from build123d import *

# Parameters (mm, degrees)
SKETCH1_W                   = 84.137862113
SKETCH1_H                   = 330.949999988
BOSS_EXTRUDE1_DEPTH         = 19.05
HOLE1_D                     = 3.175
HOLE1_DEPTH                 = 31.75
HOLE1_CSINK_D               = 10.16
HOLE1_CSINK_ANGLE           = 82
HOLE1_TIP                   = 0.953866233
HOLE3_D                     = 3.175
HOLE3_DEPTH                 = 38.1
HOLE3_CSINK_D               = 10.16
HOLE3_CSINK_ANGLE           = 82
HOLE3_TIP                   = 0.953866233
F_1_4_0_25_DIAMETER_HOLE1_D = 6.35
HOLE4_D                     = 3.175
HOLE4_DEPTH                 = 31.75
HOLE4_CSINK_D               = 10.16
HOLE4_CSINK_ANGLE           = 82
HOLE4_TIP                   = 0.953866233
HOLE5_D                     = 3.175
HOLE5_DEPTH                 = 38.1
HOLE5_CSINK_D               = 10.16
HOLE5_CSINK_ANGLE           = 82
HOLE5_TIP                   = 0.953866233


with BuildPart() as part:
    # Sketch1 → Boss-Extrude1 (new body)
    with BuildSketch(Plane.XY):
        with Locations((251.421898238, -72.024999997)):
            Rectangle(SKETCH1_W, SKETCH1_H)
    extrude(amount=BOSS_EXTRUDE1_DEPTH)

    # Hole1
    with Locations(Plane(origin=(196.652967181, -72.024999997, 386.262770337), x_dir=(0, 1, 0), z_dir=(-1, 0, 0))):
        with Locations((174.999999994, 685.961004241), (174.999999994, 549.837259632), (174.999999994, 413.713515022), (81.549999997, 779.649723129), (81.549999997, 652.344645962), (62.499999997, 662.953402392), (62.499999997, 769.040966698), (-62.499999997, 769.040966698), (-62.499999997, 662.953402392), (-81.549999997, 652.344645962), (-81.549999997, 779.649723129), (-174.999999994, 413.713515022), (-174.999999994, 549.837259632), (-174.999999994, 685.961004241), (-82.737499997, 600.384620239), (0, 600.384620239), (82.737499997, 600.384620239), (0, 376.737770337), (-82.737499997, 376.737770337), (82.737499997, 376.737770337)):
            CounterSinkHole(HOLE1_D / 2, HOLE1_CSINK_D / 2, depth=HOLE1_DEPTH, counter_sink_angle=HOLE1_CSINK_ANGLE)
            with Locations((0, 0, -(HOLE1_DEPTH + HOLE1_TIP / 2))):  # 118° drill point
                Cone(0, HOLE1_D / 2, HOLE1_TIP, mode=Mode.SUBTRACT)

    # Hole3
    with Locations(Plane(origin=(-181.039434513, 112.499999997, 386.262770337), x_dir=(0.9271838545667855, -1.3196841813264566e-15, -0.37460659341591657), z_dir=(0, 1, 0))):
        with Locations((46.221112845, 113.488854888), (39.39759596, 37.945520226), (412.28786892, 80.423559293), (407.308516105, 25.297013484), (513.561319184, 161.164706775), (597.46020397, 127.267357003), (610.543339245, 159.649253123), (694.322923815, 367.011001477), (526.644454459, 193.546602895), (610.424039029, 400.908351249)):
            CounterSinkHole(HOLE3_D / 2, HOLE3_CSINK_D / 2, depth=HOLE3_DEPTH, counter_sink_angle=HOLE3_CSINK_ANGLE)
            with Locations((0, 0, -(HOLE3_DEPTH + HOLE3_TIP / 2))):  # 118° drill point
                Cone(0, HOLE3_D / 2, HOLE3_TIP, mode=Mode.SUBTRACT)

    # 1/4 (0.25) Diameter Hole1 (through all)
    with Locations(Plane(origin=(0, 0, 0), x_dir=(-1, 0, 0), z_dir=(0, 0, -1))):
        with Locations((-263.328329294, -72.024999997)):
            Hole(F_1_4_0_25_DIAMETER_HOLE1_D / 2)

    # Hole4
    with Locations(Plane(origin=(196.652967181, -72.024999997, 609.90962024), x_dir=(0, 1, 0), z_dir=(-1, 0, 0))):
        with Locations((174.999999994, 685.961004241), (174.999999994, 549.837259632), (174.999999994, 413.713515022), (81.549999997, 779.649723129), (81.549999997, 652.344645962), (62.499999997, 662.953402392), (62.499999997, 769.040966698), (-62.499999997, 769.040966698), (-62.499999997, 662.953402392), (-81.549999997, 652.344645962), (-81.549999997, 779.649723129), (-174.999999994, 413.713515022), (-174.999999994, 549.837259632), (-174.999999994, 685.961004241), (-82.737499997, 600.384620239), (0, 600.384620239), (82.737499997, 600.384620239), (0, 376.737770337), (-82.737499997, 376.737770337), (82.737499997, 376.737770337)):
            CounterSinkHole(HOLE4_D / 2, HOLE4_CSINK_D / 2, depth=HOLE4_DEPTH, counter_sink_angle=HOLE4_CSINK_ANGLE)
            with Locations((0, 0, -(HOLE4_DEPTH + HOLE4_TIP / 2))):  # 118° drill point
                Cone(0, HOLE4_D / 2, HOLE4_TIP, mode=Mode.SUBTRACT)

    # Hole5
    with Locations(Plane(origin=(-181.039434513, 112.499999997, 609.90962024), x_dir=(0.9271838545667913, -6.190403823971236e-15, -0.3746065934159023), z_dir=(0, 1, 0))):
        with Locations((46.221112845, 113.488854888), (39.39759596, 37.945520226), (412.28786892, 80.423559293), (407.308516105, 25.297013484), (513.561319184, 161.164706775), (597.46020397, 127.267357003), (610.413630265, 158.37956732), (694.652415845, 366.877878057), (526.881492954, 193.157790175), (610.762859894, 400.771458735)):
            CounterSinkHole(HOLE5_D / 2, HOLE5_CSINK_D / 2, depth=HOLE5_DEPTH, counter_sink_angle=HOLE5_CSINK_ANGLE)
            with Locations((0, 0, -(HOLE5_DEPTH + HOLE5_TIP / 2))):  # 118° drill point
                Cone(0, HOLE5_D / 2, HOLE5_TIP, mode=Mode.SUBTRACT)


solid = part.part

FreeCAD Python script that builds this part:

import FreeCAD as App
import Part
import Sketcher
Q = App.Units.Quantity


def add_polygon(sketch, points):
    """Adds a closed chain of lines whose ends are joined by coincident constraints."""
    first, n = sketch.GeometryCount, len(points)
    for a, b in zip(points, points[1:] + points[:1]):
        sketch.addGeometry(Part.LineSegment(App.Vector(*a, 0), App.Vector(*b, 0)), False)
    for i in range(n):
        sketch.addConstraint(Sketcher.Constraint("Coincident", first + i, 2, first + (i + 1) % n, 1))

doc = App.newDocument("Part")
body = doc.addObject("PartDesign::Body", "Body")

# Sketch on XY plane
sketch1 = body.newObject("Sketcher::SketchObject", "Sketch")
sketch1.AttachmentSupport = (doc.getObject("XY_Plane"), [""])
sketch1.MapMode = "FlatFace"
add_polygon(sketch1, [(209, 93), (209, -237), (293, -237), (293, 93)])  # lines 0-3
sketch1.addConstraint(Sketcher.Constraint("Vertical", 0))
sketch1.addConstraint(Sketcher.Constraint("Horizontal", 1))
sketch1.addConstraint(Sketcher.Constraint("Vertical", 2))
sketch1.addConstraint(Sketcher.Constraint("Horizontal", 3))
sketch1.addConstraint(Sketcher.Constraint("DistanceY", 0, 2, 0, 1, Q("330.95 mm")))
sketch1.addConstraint(Sketcher.Constraint("DistanceY", 0, 2, -1, 1, Q("237.5 mm")))
sketch1.addConstraint(Sketcher.Constraint("DistanceX", 1, 1, 1, 2, Q("84.137862 mm")))
sketch1.addConstraint(Sketcher.Constraint("DistanceX", -1, 1, 1, 2, Q("293.490829 mm")))
pad1 = body.newObject("PartDesign::Pad", "Pad")
pad1.Profile = sketch1
pad1.Length = Q("0.75 in")

# Sketch on YZ plane
sketch2 = body.newObject("Sketcher::SketchObject", "Sketch001")
sketch2.AttachmentSupport = (doc.getObject("YZ_Plane"), [""])
sketch2.MapMode = "FlatFace"
sketch2.AttachmentOffset = App.Placement(App.Vector(0, 0, 196.652967), App.Rotation())
sketch2.addGeometry(Part.Circle(App.Vector(103, -299.7, 0), App.Vector(0, 0, 1), 1.6), False)
sketch2.addGeometry(Part.Circle(App.Vector(103, -163.6, 0), App.Vector(0, 0, 1), 1.6), False)
sketch2.addGeometry(Part.Circle(App.Vector(103, -27.5, 0), App.Vector(0, 0, 1), 1.6), False)
sketch2.addGeometry(Part.Circle(App.Vector(9.5, -393.4, 0), App.Vector(0, 0, 1), 1.6), False)
sketch2.addGeometry(Part.Circle(App.Vector(9.5, -266.1, 0), App.Vector(0, 0, 1), 1.6), False)
sketch2.addGeometry(Part.Circle(App.Vector(-9.5, -276.7, 0), App.Vector(0, 0, 1), 1.6), False)
sketch2.addGeometry(Part.Circle(App.Vector(-9.5, -382.8, 0), App.Vector(0, 0, 1), 1.6), False)
sketch2.addGeometry(Part.Circle(App.Vector(-134.5, -382.8, 0), App.Vector(0, 0, 1), 1.6), False)
sketch2.addGeometry(Part.Circle(App.Vector(-134.5, -276.7, 0), App.Vector(0, 0, 1), 1.6), False)
sketch2.addGeometry(Part.Circle(App.Vector(-153.6, -266.1, 0), App.Vector(0, 0, 1), 1.6), False)
sketch2.addGeometry(Part.Circle(App.Vector(-153.6, -393.4, 0), App.Vector(0, 0, 1), 1.6), False)
sketch2.addGeometry(Part.Circle(App.Vector(-247, -27.5, 0), App.Vector(0, 0, 1), 1.6), False)
sketch2.addGeometry(Part.Circle(App.Vector(-247, -163.6, 0), App.Vector(0, 0, 1), 1.6), False)
sketch2.addGeometry(Part.Circle(App.Vector(-247, -299.7, 0), App.Vector(0, 0, 1), 1.6), False)
sketch2.addGeometry(Part.Circle(App.Vector(-154.8, -214.1, 0), App.Vector(0, 0, 1), 1.6), False)
sketch2.addGeometry(Part.Circle(App.Vector(-72, -214.1, 0), App.Vector(0, 0, 1), 1.6), False)
sketch2.addGeometry(Part.Circle(App.Vector(10.7, -214.1, 0), App.Vector(0, 0, 1), 1.6), False)
sketch2.addGeometry(Part.Circle(App.Vector(-72, 9.5, 0), App.Vector(0, 0, 1), 1.6), False)
sketch2.addGeometry(Part.Circle(App.Vector(-154.8, 9.5, 0), App.Vector(0, 0, 1), 1.6), False)
sketch2.addGeometry(Part.Circle(App.Vector(10.7, 9.5, 0), App.Vector(0, 0, 1), 1.6), False)
sketch2.addConstraint(Sketcher.Constraint("Equal", 0, 1))
sketch2.addConstraint(Sketcher.Constraint("Equal", 1, 2))
sketch2.addConstraint(Sketcher.Constraint("Equal", 2, 3))
sketch2.addConstraint(Sketcher.Constraint("Equal", 3, 4))
sketch2.addConstraint(Sketcher.Constraint("Equal", 4, 5))
sketch2.addConstraint(Sketcher.Constraint("Equal", 5, 6))
sketch2.addConstraint(Sketcher.Constraint("Equal", 6, 7))
sketch2.addConstraint(Sketcher.Constraint("Equal", 7, 8))
sketch2.addConstraint(Sketcher.Constraint("Equal", 8, 9))
sketch2.addConstraint(Sketcher.Constraint("Equal", 9, 10))
sketch2.addConstraint(Sketcher.Constraint("Equal", 10, 11))
sketch2.addConstraint(Sketcher.Constraint("Equal", 11, 12))
sketch2.addConstraint(Sketcher.Constraint("Equal", 12, 13))
sketch2.addConstraint(Sketcher.Constraint("Equal", 13, 14))
sketch2.addConstraint(Sketcher.Constraint("Equal", 14, 15))
sketch2.addConstraint(Sketcher.Constraint("Equal", 15, 16))
sketch2.addConstraint(Sketcher.Constraint("Equal", 16, 17))
sketch2.addConstraint(Sketcher.Constraint("Equal", 17, 18))
sketch2.addConstraint(Sketcher.Constraint("Equal", 18, 19))
sketch2.addConstraint(Sketcher.Constraint("Horizontal", 6, 3, 7, 3))
sketch2.addConstraint(Sketcher.Constraint("Horizontal", 5, 3, 8, 3))
sketch2.addConstraint(Sketcher.Constraint("Horizontal", 4, 3, 9, 3))
sketch2.addConstraint(Sketcher.Constraint("Horizontal", 3, 3, 10, 3))
sketch2.addConstraint(Sketcher.Constraint("Horizontal", 2, 3, 11, 3))
sketch2.addConstraint(Sketcher.Constraint("Horizontal", 1, 3, 12, 3))
sketch2.addConstraint(Sketcher.Constraint("Horizontal", 0, 3, 13, 3))
sketch2.addConstraint(Sketcher.Constraint("Horizontal", 14, 3, 15, 3))
sketch2.addConstraint(Sketcher.Constraint("Horizontal", 15, 3, 16, 3))
sketch2.addConstraint(Sketcher.Constraint("Horizontal", 17, 3, 18, 3))
sketch2.addConstraint(Sketcher.Constraint("Horizontal", 18, 3, 19, 3))
sketch2.addConstraint(Sketcher.Constraint("Vertical", 0, 3, 1, 3))
sketch2.addConstraint(Sketcher.Constraint("Vertical", 1, 3, 2, 3))
sketch2.addConstraint(Sketcher.Constraint("Vertical", 3, 3, 4, 3))
sketch2.addConstraint(Sketcher.Constraint("Vertical", 5, 3, 6, 3))
sketch2.addConstraint(Sketcher.Constraint("Vertical", 7, 3, 8, 3))
sketch2.addConstraint(Sketcher.Constraint("Vertical", 9, 3, 10, 3))
sketch2.addConstraint(Sketcher.Constraint("Vertical", 11, 3, 12, 3))
sketch2.addConstraint(Sketcher.Constraint("Vertical", 12, 3, 13, 3))
sketch2.addConstraint(Sketcher.Constraint("Vertical", 15, 3, 17, 3))
sketch2.addConstraint(Sketcher.Constraint("Vertical", 14, 3, 18, 3))
sketch2.addConstraint(Sketcher.Constraint("Vertical", 16, 3, 19, 3))
sketch2.addConstraint(Sketcher.Constraint("Diameter", 0, Q("0.125 in")))
sketch2.addConstraint(Sketcher.Constraint("DistanceX", 5, 3, 4, 3, Q("0.75 in")))
sketch2.addConstraint(Sketcher.Constraint("DistanceX", 9, 3, 8, 3, Q("0.75 in")))
sketch2.addConstraint(Sketcher.Constraint("DistanceX", -1, 1, 3, 3, Q("0.375 in")))
sketch2.addConstraint(Sketcher.Constraint("DistanceY", -1, 1, 17, 3, Q("0.375 in")))
sketch2.addConstraint(Sketcher.Constraint("DistanceX", -1, 1, 0, 3, Q("102.975 mm")))
sketch2.addConstraint(Sketcher.Constraint("DistanceX", 7, 3, -1, 1, Q("134.525 mm")))
sketch2.addConstraint(Sketcher.Constraint("DistanceX", 11, 3, -1, 1, Q("247.025 mm")))
sketch2.addConstraint(Sketcher.Constraint("DistanceX", 14, 3, -1, 1, Q("154.7625 mm")))
sketch2.addConstraint(Sketcher.Constraint("DistanceX", 15, 3, -1, 1, Q("72.025 mm")))
sketch2.addConstraint(Sketcher.Constraint("DistanceX", -1, 1, 16, 3, Q("10.7125 mm")))
sketch2.addConstraint(Sketcher.Constraint("DistanceY", 0, 3, 5, 3, Q("23.007602 mm")))
sketch2.addConstraint(Sketcher.Constraint("DistanceY", 1, 3, -1, 1, Q("163.574489 mm")))
sketch2.addConstraint(Sketcher.Constraint("DistanceY", 14, 3, -1, 1, Q("214.12185 mm")))
sketch2.addConstraint(Sketcher.Constraint("DistanceY", 0, 3, 2, 3, Q("272.247489 mm")))
sketch2.addConstraint(Sketcher.Constraint("DistanceY", 3, 3, 0, 3, Q("93.688719 mm")))
sketch2.addConstraint(Sketcher.Constraint("DistanceY", 0, 3, 4, 3, Q("33.616358 mm")))
sketch2.addConstraint(Sketcher.Constraint("DistanceY", 6, 3, 4, 3, Q("116.696321 mm")))
sketch2.addConstraint(Sketcher.Constraint("DistanceY", 0, 3, -1, 1, Q("299.698234 mm")))
doc.recompute()
hole = body.newObject("PartDesign::Hole", "Hole")
hole.Profile = sketch2
hole.ThreadType = "None"
hole.Diameter = Q("0.125 in")
hole.DepthType = "Dimension"
hole.Depth = Q("1.25 in")
hole.DrillPoint = "Angled"
hole.DrillPointAngle = 118
hole.HoleCutType = "Countersink"
hole.HoleCutDiameter = Q("0.4 in")
hole.HoleCutCountersinkAngle = 82
hole.Reversed = True

# Sketch on XZ plane
sketch3 = body.newObject("Sketcher::SketchObject", "Sketch002")
sketch3.AttachmentSupport = (doc.getObject("XZ_Plane"), [""])
sketch3.MapMode = "FlatFace"
sketch3.AttachmentOffset = App.Placement(App.Vector(0, 0, -112.5), App.Rotation())
sketch3.addGeometry(Part.Circle(App.Vector(-180.7, 263.7, 0), App.Vector(0, 0, 1), 1.6), False)
sketch3.addGeometry(Part.Circle(App.Vector(-158.7, 336.3, 0), App.Vector(0, 0, 1), 1.6), False)
sketch3.addGeometry(Part.Circle(App.Vector(171.1, 157.2, 0), App.Vector(0, 0, 1), 1.6), False)
sketch3.addGeometry(Part.Circle(App.Vector(187.1, 210.2, 0), App.Vector(0, 0, 1), 1.6), False)
sketch3.addGeometry(Part.Circle(App.Vector(234.8, 44.5, 0), App.Vector(0, 0, 1), 1.6), False)
sketch3.addGeometry(Part.Circle(App.Vector(325.2, 44.5, 0), App.Vector(0, 0, 1), 1.6), False)
sketch3.addGeometry(Part.Circle(App.Vector(325.2, 9.5, 0), App.Vector(0, 0, 1), 1.6), False)
sketch3.addGeometry(Part.Circle(App.Vector(325.2, -214.1, 0), App.Vector(0, 0, 1), 1.6), False)
sketch3.addGeometry(Part.Circle(App.Vector(234.8, 9.5, 0), App.Vector(0, 0, 1), 1.6), False)
sketch3.addGeometry(Part.Circle(App.Vector(234.8, -214.1, 0), App.Vector(0, 0, 1), 1.6), False)
sketch3.addConstraint(Sketcher.Constraint("Equal", 0, 1))
sketch3.addConstraint(Sketcher.Constraint("Equal", 1, 2))
sketch3.addConstraint(Sketcher.Constraint("Equal", 2, 3))
sketch3.addConstraint(Sketcher.Constraint("Equal", 3, 4))
sketch3.addConstraint(Sketcher.Constraint("Equal", 4, 5))
sketch3.addConstraint(Sketcher.Constraint("Equal", 5, 6))
sketch3.addConstraint(Sketcher.Constraint("Equal", 6, 7))
sketch3.addConstraint(Sketcher.Constraint("Equal", 7, 8))
sketch3.addConstraint(Sketcher.Constraint("Equal", 8, 9))
sketch3.addConstraint(Sketcher.Constraint("Horizontal", 4, 3, 5, 3))
sketch3.addConstraint(Sketcher.Constraint("Horizontal", 6, 3, 8, 3))
sketch3.addConstraint(Sketcher.Constraint("Horizontal", 7, 3, 9, 3))
sketch3.addConstraint(Sketcher.Constraint("Vertical", 5, 3, 6, 3))
sketch3.addConstraint(Sketcher.Constraint("Vertical", 6, 3, 7, 3))
sketch3.addConstraint(Sketcher.Constraint("Vertical", 4, 3, 8, 3))
sketch3.addConstraint(Sketcher.Constraint("Vertical", 8, 3, 9, 3))
sketch3.addConstraint(Sketcher.Constraint("Diameter", 0, Q("0.125 in")))
sketch3.addConstraint(Sketcher.Constraint("DistanceY", -1, 1, 4, 3, Q("1.75 in")))
sketch3.addConstraint(Sketcher.Constraint("DistanceY", -1, 1, 6, 3, Q("0.375 in")))
sketch3.addConstraint(Sketcher.Constraint("DistanceX", 0, 3, -1, 1, Q("180.697638 mm")))
sketch3.addConstraint(Sketcher.Constraint("DistanceX", 1, 3, -1, 1, Q("158.725262 mm")))
sketch3.addConstraint(Sketcher.Constraint("DistanceY", -1, 1, 2, 3, Q("157.249591 mm")))
sketch3.addConstraint(Sketcher.Constraint("DistanceX", -1, 1, 5, 3, Q("325.240829 mm")))
sketch3.addConstraint(Sketcher.Constraint("DistanceY", 7, 3, -1, 1, Q("214.12185 mm")))
sketch3.addConstraint(Sketcher.Constraint("DistanceX", 2, 3, 3, 3, Q("16.033992 mm")))
sketch3.addConstraint(Sketcher.Constraint("DistanceY", 2, 3, 3, 3, Q("52.977742 mm")))
sketch3.addConstraint(Sketcher.Constraint("DistanceX", 1, 3, 3, 3, Q("345.859279 mm")))
sketch3.addConstraint(Sketcher.Constraint("DistanceY", 3, 3, 0, 3, Q("53.49567 mm")))
sketch3.addConstraint(Sketcher.Constraint("DistanceX", 2, 3, 4, 3, Q("63.652942 mm")))
sketch3.addConstraint(Sketcher.Constraint("DistanceY", -1, 1, 1, 3, Q("336.321697 mm")))
doc.recompute()
hole2 = body.newObject("PartDesign::Hole", "Hole001")
hole2.Profile = sketch3
hole2.ThreadType = "None"
hole2.Diameter = Q("0.125 in")
hole2.DepthType = "Dimension"
hole2.Depth = Q("1.5 in")
hole2.DrillPoint = "Angled"
hole2.DrillPointAngle = 118
hole2.HoleCutType = "Countersink"
hole2.HoleCutDiameter = Q("0.4 in")
hole2.HoleCutCountersinkAngle = 82
hole2.Reversed = True

# Sketch on XY plane
sketch4 = body.newObject("Sketcher::SketchObject", "Sketch003")
sketch4.AttachmentSupport = (doc.getObject("XY_Plane"), [""])
sketch4.MapMode = "FlatFace"
sketch4.addGeometry(Part.Circle(App.Vector(263.3, -72, 0), App.Vector(0, 0, 1), 3.2), False)
sketch4.addConstraint(Sketcher.Constraint("Diameter", 0, Q("0.25 in")))
sketch4.addConstraint(Sketcher.Constraint("DistanceY", 0, 3, -1, 1, Q("72.025 mm")))
sketch4.addConstraint(Sketcher.Constraint("DistanceX", -1, 1, 0, 3, Q("263.328329 mm")))
doc.recompute()
hole3 = body.newObject("PartDesign::Hole", "Hole002")
hole3.Profile = sketch4
hole3.ThreadType = "None"
hole3.Diameter = Q("0.25 in")
hole3.DepthType = "ThroughAll"
hole3.Reversed = True

# Sketch on YZ plane
sketch5 = body.newObject("Sketcher::SketchObject", "Sketch004")
sketch5.AttachmentSupport = (doc.getObject("YZ_Plane"), [""])
sketch5.MapMode = "FlatFace"
sketch5.AttachmentOffset = App.Placement(App.Vector(0, 0, 196.652967), App.Rotation())
sketch5.addGeometry(Part.Circle(App.Vector(103, -76.1, 0), App.Vector(0, 0, 1), 1.6), False)
sketch5.addGeometry(Part.Circle(App.Vector(103, 60.1, 0), App.Vector(0, 0, 1), 1.6), False)
sketch5.addGeometry(Part.Circle(App.Vector(103, 196.2, 0), App.Vector(0, 0, 1), 1.6), False)
sketch5.addGeometry(Part.Circle(App.Vector(9.5, -169.7, 0), App.Vector(0, 0, 1), 1.6), False)
sketch5.addGeometry(Part.Circle(App.Vector(9.5, -42.4, 0), App.Vector(0, 0, 1), 1.6), False)
sketch5.addGeometry(Part.Circle(App.Vector(-9.5, -53, 0), App.Vector(0, 0, 1), 1.6), False)
sketch5.addGeometry(Part.Circle(App.Vector(-9.5, -159.1, 0), App.Vector(0, 0, 1), 1.6), False)
sketch5.addGeometry(Part.Circle(App.Vector(-134.5, -159.1, 0), App.Vector(0, 0, 1), 1.6), False)
sketch5.addGeometry(Part.Circle(App.Vector(-134.5, -53, 0), App.Vector(0, 0, 1), 1.6), False)
sketch5.addGeometry(Part.Circle(App.Vector(-153.6, -42.4, 0), App.Vector(0, 0, 1), 1.6), False)
sketch5.addGeometry(Part.Circle(App.Vector(-153.6, -169.7, 0), App.Vector(0, 0, 1), 1.6), False)
sketch5.addGeometry(Part.Circle(App.Vector(-247, 196.2, 0), App.Vector(0, 0, 1), 1.6), False)
sketch5.addGeometry(Part.Circle(App.Vector(-247, 60.1, 0), App.Vector(0, 0, 1), 1.6), False)
sketch5.addGeometry(Part.Circle(App.Vector(-247, -76.1, 0), App.Vector(0, 0, 1), 1.6), False)
sketch5.addGeometry(Part.Circle(App.Vector(-154.8, 9.5, 0), App.Vector(0, 0, 1), 1.6), False)
sketch5.addGeometry(Part.Circle(App.Vector(-72, 9.5, 0), App.Vector(0, 0, 1), 1.6), False)
sketch5.addGeometry(Part.Circle(App.Vector(10.7, 9.5, 0), App.Vector(0, 0, 1), 1.6), False)
sketch5.addGeometry(Part.Circle(App.Vector(-72, 233.2, 0), App.Vector(0, 0, 1), 1.6), False)
sketch5.addGeometry(Part.Circle(App.Vector(-154.8, 233.2, 0), App.Vector(0, 0, 1), 1.6), False)
sketch5.addGeometry(Part.Circle(App.Vector(10.7, 233.2, 0), App.Vector(0, 0, 1), 1.6), False)
sketch5.addConstraint(Sketcher.Constraint("Equal", 0, 1))
sketch5.addConstraint(Sketcher.Constraint("Equal", 1, 2))
sketch5.addConstraint(Sketcher.Constraint("Equal", 2, 3))
sketch5.addConstraint(Sketcher.Constraint("Equal", 3, 4))
sketch5.addConstraint(Sketcher.Constraint("Equal", 4, 5))
sketch5.addConstraint(Sketcher.Constraint("Equal", 5, 6))
sketch5.addConstraint(Sketcher.Constraint("Equal", 6, 7))
sketch5.addConstraint(Sketcher.Constraint("Equal", 7, 8))
sketch5.addConstraint(Sketcher.Constraint("Equal", 8, 9))
sketch5.addConstraint(Sketcher.Constraint("Equal", 9, 10))
sketch5.addConstraint(Sketcher.Constraint("Equal", 10, 11))
sketch5.addConstraint(Sketcher.Constraint("Equal", 11, 12))
sketch5.addConstraint(Sketcher.Constraint("Equal", 12, 13))
sketch5.addConstraint(Sketcher.Constraint("Equal", 13, 14))
sketch5.addConstraint(Sketcher.Constraint("Equal", 14, 15))
sketch5.addConstraint(Sketcher.Constraint("Equal", 15, 16))
sketch5.addConstraint(Sketcher.Constraint("Equal", 16, 17))
sketch5.addConstraint(Sketcher.Constraint("Equal", 17, 18))
sketch5.addConstraint(Sketcher.Constraint("Equal", 18, 19))
sketch5.addConstraint(Sketcher.Constraint("Horizontal", 6, 3, 7, 3))
sketch5.addConstraint(Sketcher.Constraint("Horizontal", 5, 3, 8, 3))
sketch5.addConstraint(Sketcher.Constraint("Horizontal", 4, 3, 9, 3))
sketch5.addConstraint(Sketcher.Constraint("Horizontal", 3, 3, 10, 3))
sketch5.addConstraint(Sketcher.Constraint("Horizontal", 2, 3, 11, 3))
sketch5.addConstraint(Sketcher.Constraint("Horizontal", 1, 3, 12, 3))
sketch5.addConstraint(Sketcher.Constraint("Horizontal", 0, 3, 13, 3))
sketch5.addConstraint(Sketcher.Constraint("Horizontal", 14, 3, 15, 3))
sketch5.addConstraint(Sketcher.Constraint("Horizontal", 15, 3, 16, 3))
sketch5.addConstraint(Sketcher.Constraint("Horizontal", 17, 3, 18, 3))
sketch5.addConstraint(Sketcher.Constraint("Horizontal", 18, 3, 19, 3))
sketch5.addConstraint(Sketcher.Constraint("Vertical", 0, 3, 1, 3))
sketch5.addConstraint(Sketcher.Constraint("Vertical", 1, 3, 2, 3))
sketch5.addConstraint(Sketcher.Constraint("Vertical", 3, 3, 4, 3))
sketch5.addConstraint(Sketcher.Constraint("Vertical", 5, 3, 6, 3))
sketch5.addConstraint(Sketcher.Constraint("Vertical", 7, 3, 8, 3))
sketch5.addConstraint(Sketcher.Constraint("Vertical", 9, 3, 10, 3))
sketch5.addConstraint(Sketcher.Constraint("Vertical", 11, 3, 12, 3))
sketch5.addConstraint(Sketcher.Constraint("Vertical", 12, 3, 13, 3))
sketch5.addConstraint(Sketcher.Constraint("Vertical", 15, 3, 17, 3))
sketch5.addConstraint(Sketcher.Constraint("Vertical", 14, 3, 18, 3))
sketch5.addConstraint(Sketcher.Constraint("Vertical", 16, 3, 19, 3))
sketch5.addConstraint(Sketcher.Constraint("Diameter", 0, Q("0.125 in")))
sketch5.addConstraint(Sketcher.Constraint("DistanceX", 5, 3, 4, 3, Q("0.75 in")))
sketch5.addConstraint(Sketcher.Constraint("DistanceX", 9, 3, 8, 3, Q("0.75 in")))
sketch5.addConstraint(Sketcher.Constraint("DistanceX", -1, 1, 3, 3, Q("0.375 in")))
sketch5.addConstraint(Sketcher.Constraint("DistanceY", -1, 1, 14, 3, Q("0.375 in")))
sketch5.addConstraint(Sketcher.Constraint("DistanceX", -1, 1, 0, 3, Q("102.975 mm")))
sketch5.addConstraint(Sketcher.Constraint("DistanceX", 7, 3, -1, 1, Q("134.525 mm")))
sketch5.addConstraint(Sketcher.Constraint("DistanceX", 11, 3, -1, 1, Q("247.025 mm")))
sketch5.addConstraint(Sketcher.Constraint("DistanceX", 14, 3, -1, 1, Q("154.7625 mm")))
sketch5.addConstraint(Sketcher.Constraint("DistanceX", 15, 3, -1, 1, Q("72.025 mm")))
sketch5.addConstraint(Sketcher.Constraint("DistanceX", -1, 1, 16, 3, Q("10.7125 mm")))
sketch5.addConstraint(Sketcher.Constraint("DistanceY", 0, 3, 5, 3, Q("23.007602 mm")))
sketch5.addConstraint(Sketcher.Constraint("DistanceY", -1, 1, 1, 3, Q("60.072361 mm")))
sketch5.addConstraint(Sketcher.Constraint("DistanceY", -1, 1, 17, 3, Q("233.17185 mm")))
sketch5.addConstraint(Sketcher.Constraint("DistanceY", 0, 3, 2, 3, Q("272.247489 mm")))
sketch5.addConstraint(Sketcher.Constraint("DistanceY", 3, 3, 0, 3, Q("93.688719 mm")))
sketch5.addConstraint(Sketcher.Constraint("DistanceY", 0, 3, 4, 3, Q("33.616358 mm")))
sketch5.addConstraint(Sketcher.Constraint("DistanceY", 6, 3, 4, 3, Q("116.696321 mm")))
sketch5.addConstraint(Sketcher.Constraint("DistanceY", 0, 3, -1, 1, Q("76.051384 mm")))
doc.recompute()
hole4 = body.newObject("PartDesign::Hole", "Hole003")
hole4.Profile = sketch5
hole4.ThreadType = "None"
hole4.Diameter = Q("0.125 in")
hole4.DepthType = "Dimension"
hole4.Depth = Q("1.25 in")
hole4.DrillPoint = "Angled"
hole4.DrillPointAngle = 118
hole4.HoleCutType = "Countersink"
hole4.HoleCutDiameter = Q("0.4 in")
hole4.HoleCutCountersinkAngle = 82
hole4.Reversed = True

# Sketch on XZ plane
sketch6 = body.newObject("Sketcher::SketchObject", "Sketch005")
sketch6.AttachmentSupport = (doc.getObject("XZ_Plane"), [""])
sketch6.MapMode = "FlatFace"
sketch6.AttachmentOffset = App.Placement(App.Vector(0, 0, -112.5), App.Rotation())
sketch6.addGeometry(Part.Circle(App.Vector(-180.7, 487.4, 0), App.Vector(0, 0, 1), 1.6), False)
sketch6.addGeometry(Part.Circle(App.Vector(-158.7, 560, 0), App.Vector(0, 0, 1), 1.6), False)
sketch6.addGeometry(Part.Circle(App.Vector(171.1, 380.9, 0), App.Vector(0, 0, 1), 1.6), False)
sketch6.addGeometry(Part.Circle(App.Vector(187.1, 433.9, 0), App.Vector(0, 0, 1), 1.6), False)
sketch6.addGeometry(Part.Circle(App.Vector(234.8, 268.1, 0), App.Vector(0, 0, 1), 1.6), False)
sketch6.addGeometry(Part.Circle(App.Vector(325.2, 268.1, 0), App.Vector(0, 0, 1), 1.6), False)
sketch6.addGeometry(Part.Circle(App.Vector(325.6, 234.4, 0), App.Vector(0, 0, 1), 1.6), False)
sketch6.addGeometry(Part.Circle(App.Vector(325.6, 9.5, 0), App.Vector(0, 0, 1), 1.6), False)
sketch6.addGeometry(Part.Circle(App.Vector(235.1, 233.4, 0), App.Vector(0, 0, 1), 1.6), False)
sketch6.addGeometry(Part.Circle(App.Vector(235.1, 9.5, 0), App.Vector(0, 0, 1), 1.6), False)
sketch6.addConstraint(Sketcher.Constraint("Equal", 0, 1))
sketch6.addConstraint(Sketcher.Constraint("Equal", 1, 2))
sketch6.addConstraint(Sketcher.Constraint("Equal", 2, 3))
sketch6.addConstraint(Sketcher.Constraint("Equal", 3, 4))
sketch6.addConstraint(Sketcher.Constraint("Equal", 4, 5))
sketch6.addConstraint(Sketcher.Constraint("Equal", 5, 6))
sketch6.addConstraint(Sketcher.Constraint("Equal", 6, 7))
sketch6.addConstraint(Sketcher.Constraint("Equal", 7, 8))
sketch6.addConstraint(Sketcher.Constraint("Equal", 8, 9))
sketch6.addConstraint(Sketcher.Constraint("Horizontal", 4, 3, 5, 3))
sketch6.addConstraint(Sketcher.Constraint("Horizontal", 7, 3, 9, 3))
sketch6.addConstraint(Sketcher.Constraint("Vertical", 6, 3, 7, 3))
sketch6.addConstraint(Sketcher.Constraint("Vertical", 8, 3, 9, 3))
sketch6.addConstraint(Sketcher.Constraint("Diameter", 0, Q("0.125 in")))
sketch6.addConstraint(Sketcher.Constraint("DistanceY", -1, 1, 7, 3, Q("0.375 in")))
sketch6.addConstraint(Sketcher.Constraint("DistanceX", 8, 3, 6, 3, Q("90.477801 mm")))
sketch6.addConstraint(Sketcher.Constraint("DistanceX", 0, 3, -1, 1, Q("180.697639 mm")))
sketch6.addConstraint(Sketcher.Constraint("DistanceY", -1, 1, 2, 3, Q("380.896441 mm")))
sketch6.addConstraint(Sketcher.Constraint("DistanceY", -1, 1, 4, 3, Q("268.09685 mm")))
sketch6.addConstraint(Sketcher.Constraint("DistanceX", -1, 1, 5, 3, Q("325.240829 mm")))
sketch6.addConstraint(Sketcher.Constraint("DistanceX", 2, 3, 3, 3, Q("16.033992 mm")))
sketch6.addConstraint(Sketcher.Constraint("DistanceY", 2, 3, 3, 3, Q("52.977742 mm")))
sketch6.addConstraint(Sketcher.Constraint("DistanceX", 1, 3, 3, 3, Q("345.859279 mm")))
sketch6.addConstraint(Sketcher.Constraint("DistanceY", 3, 3, 0, 3, Q("53.49567 mm")))
sketch6.addConstraint(Sketcher.Constraint("DistanceX", 2, 3, 4, 3, Q("63.652942 mm")))
sketch6.addConstraint(Sketcher.Constraint("DistanceX", 1, 3, 5, 3, Q("483.966091 mm")))
sketch6.addConstraint(Sketcher.Constraint("DistanceX", 5, 3, 6, 3, Q("0.355369 mm")))
sketch6.addConstraint(Sketcher.Constraint("DistanceY", 6, 3, 2, 3, Q("146.498768 mm")))
sketch6.addConstraint(Sketcher.Constraint("DistanceY", -1, 1, 1, 3, Q("559.968547 mm")))
sketch6.addConstraint(Sketcher.Constraint("DistanceY", -1, 1, 8, 3, Q("233.443555 mm")))
doc.recompute()
hole5 = body.newObject("PartDesign::Hole", "Hole004")
hole5.Profile = sketch6
hole5.ThreadType = "None"
hole5.Diameter = Q("0.125 in")
hole5.DepthType = "Dimension"
hole5.Depth = Q("1.5 in")
hole5.DrillPoint = "Angled"
hole5.DrillPointAngle = 118
hole5.HoleCutType = "Countersink"
hole5.HoleCutDiameter = Q("0.4 in")
hole5.HoleCutCountersinkAngle = 82
hole5.Reversed = True

doc.recompute()
